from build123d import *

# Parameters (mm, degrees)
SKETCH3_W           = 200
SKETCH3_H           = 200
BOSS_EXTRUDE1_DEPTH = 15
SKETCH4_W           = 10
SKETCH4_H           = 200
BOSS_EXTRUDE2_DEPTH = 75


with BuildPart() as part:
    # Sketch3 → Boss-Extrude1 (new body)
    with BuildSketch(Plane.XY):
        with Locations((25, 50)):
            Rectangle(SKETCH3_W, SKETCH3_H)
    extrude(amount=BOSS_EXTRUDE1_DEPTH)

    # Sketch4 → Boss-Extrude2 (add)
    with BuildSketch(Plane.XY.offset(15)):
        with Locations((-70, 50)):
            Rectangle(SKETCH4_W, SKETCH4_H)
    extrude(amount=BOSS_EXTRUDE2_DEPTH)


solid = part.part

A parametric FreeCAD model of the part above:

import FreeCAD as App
import Part
import Sketcher

V = App.Vector
Q = App.Units.Quantity


def add_polygon(sketch, points):
    """Adds a closed chain of lines whose ends are joined by coincident constraints."""
    first, n = sketch.GeometryCount, len(points)
    for a, b in zip(points, points[1:] + points[:1]):
        sketch.addGeometry(Part.LineSegment(App.Vector(*a, 0), App.Vector(*b, 0)), False)
    for i in range(n):
        sketch.addConstraint(Sketcher.Constraint("Coincident", first + i, 2, first + (i + 1) % n, 1))

doc = App.newDocument("Part")
params = doc.addObject("Spreadsheet::Sheet", "Params")
for row, (alias, value) in enumerate([
    ("sketch1_width", "200 mm"),
    ("pad1_length", "15 mm"),
    ("sketch2_width", "10 mm"),
    ("sketch2_height", "200 mm"),
    ("pad2_length", "75 mm"),
], start=1):
    params.set(f"A{row}", alias)
    params.set(f"B{row}", "=" + value)
    params.setAlias(f"B{row}", alias)

body = doc.addObject("PartDesign::Body", "Body")

# Sketch on XY plane
sketch1 = doc.addObject("Sketcher::SketchObject", "Sketch")
body.addObject(sketch1)
sketch1.AttachmentSupport = (doc.XY_Plane, [""])
sketch1.MapMode = "FlatFace"
add_polygon(sketch1, [(-75, 150), (-75, -50), (125, -50), (125, 150)])  # lines 0-3
sketch1.addConstraint(Sketcher.Constraint("Vertical", 0))
sketch1.addConstraint(Sketcher.Constraint("Horizontal", 1))
sketch1.addConstraint(Sketcher.Constraint("Vertical", 2))
sketch1.addConstraint(Sketcher.Constraint("Horizontal", 3))
sketch1.addConstraint(Sketcher.Constraint("Equal", 3, 0))
sketch1.addConstraint(Sketcher.Constraint("DistanceX", 1, 1, 1, 2, Q("200 mm")))
sketch1.addConstraint(Sketcher.Constraint("DistanceX", 0, 2, -1, 1, Q("75 mm")))
sketch1.addConstraint(Sketcher.Constraint("DistanceY", 0, 2, -1, 1, Q("50 mm")))
sketch1.setExpression("Constraints[9]", "Params.sketch1_width")
pad1 = doc.addObject("PartDesign::Pad", "Pad")
body.addObject(pad1)
pad1.Profile = sketch1
pad1.setExpression("Length", "Params.pad1_length")

# Sketch on XY plane
sketch2 = doc.addObject("Sketcher::SketchObject", "Sketch001")
body.addObject(sketch2)
sketch2.AttachmentSupport = (doc.XY_Plane, [""])
sketch2.MapMode = "FlatFace"
sketch2.AttachmentOffset = App.Placement(V(0, 0, 15), App.Rotation())
add_polygon(sketch2, [(-75, 150), (-75, -50), (-65, -50), (-65, 150)])  # lines 0-3
sketch2.addConstraint(Sketcher.Constraint("Vertical", 0))
sketch2.addConstraint(Sketcher.Constraint("Horizontal", 1))
sketch2.addConstraint(Sketcher.Constraint("Vertical", 2))
sketch2.addConstraint(Sketcher.Constraint("Horizontal", 3))
sketch2.addConstraint(Sketcher.Constraint("DistanceX", 1, 1, 1, 2, Q("10 mm")))
sketch2.addConstraint(Sketcher.Constraint("DistanceY", 0, 2, 0, 1, Q("200 mm")))
sketch2.addConstraint(Sketcher.Constraint("DistanceX", 0, 2, -1, 1, Q("75 mm")))
sketch2.addConstraint(Sketcher.Constraint("DistanceY", 0, 2, -1, 1, Q("50 mm")))
sketch2.setExpression("Constraints[8]", "Params.sketch2_width")
sketch2.setExpression("Constraints[9]", "Params.sketch2_height")
pad2 = doc.addObject("PartDesign::Pad", "Pad001")
body.addObject(pad2)
pad2.Profile = sketch2
pad2.setExpression("Length", "Params.pad2_length")

doc.recompute()
